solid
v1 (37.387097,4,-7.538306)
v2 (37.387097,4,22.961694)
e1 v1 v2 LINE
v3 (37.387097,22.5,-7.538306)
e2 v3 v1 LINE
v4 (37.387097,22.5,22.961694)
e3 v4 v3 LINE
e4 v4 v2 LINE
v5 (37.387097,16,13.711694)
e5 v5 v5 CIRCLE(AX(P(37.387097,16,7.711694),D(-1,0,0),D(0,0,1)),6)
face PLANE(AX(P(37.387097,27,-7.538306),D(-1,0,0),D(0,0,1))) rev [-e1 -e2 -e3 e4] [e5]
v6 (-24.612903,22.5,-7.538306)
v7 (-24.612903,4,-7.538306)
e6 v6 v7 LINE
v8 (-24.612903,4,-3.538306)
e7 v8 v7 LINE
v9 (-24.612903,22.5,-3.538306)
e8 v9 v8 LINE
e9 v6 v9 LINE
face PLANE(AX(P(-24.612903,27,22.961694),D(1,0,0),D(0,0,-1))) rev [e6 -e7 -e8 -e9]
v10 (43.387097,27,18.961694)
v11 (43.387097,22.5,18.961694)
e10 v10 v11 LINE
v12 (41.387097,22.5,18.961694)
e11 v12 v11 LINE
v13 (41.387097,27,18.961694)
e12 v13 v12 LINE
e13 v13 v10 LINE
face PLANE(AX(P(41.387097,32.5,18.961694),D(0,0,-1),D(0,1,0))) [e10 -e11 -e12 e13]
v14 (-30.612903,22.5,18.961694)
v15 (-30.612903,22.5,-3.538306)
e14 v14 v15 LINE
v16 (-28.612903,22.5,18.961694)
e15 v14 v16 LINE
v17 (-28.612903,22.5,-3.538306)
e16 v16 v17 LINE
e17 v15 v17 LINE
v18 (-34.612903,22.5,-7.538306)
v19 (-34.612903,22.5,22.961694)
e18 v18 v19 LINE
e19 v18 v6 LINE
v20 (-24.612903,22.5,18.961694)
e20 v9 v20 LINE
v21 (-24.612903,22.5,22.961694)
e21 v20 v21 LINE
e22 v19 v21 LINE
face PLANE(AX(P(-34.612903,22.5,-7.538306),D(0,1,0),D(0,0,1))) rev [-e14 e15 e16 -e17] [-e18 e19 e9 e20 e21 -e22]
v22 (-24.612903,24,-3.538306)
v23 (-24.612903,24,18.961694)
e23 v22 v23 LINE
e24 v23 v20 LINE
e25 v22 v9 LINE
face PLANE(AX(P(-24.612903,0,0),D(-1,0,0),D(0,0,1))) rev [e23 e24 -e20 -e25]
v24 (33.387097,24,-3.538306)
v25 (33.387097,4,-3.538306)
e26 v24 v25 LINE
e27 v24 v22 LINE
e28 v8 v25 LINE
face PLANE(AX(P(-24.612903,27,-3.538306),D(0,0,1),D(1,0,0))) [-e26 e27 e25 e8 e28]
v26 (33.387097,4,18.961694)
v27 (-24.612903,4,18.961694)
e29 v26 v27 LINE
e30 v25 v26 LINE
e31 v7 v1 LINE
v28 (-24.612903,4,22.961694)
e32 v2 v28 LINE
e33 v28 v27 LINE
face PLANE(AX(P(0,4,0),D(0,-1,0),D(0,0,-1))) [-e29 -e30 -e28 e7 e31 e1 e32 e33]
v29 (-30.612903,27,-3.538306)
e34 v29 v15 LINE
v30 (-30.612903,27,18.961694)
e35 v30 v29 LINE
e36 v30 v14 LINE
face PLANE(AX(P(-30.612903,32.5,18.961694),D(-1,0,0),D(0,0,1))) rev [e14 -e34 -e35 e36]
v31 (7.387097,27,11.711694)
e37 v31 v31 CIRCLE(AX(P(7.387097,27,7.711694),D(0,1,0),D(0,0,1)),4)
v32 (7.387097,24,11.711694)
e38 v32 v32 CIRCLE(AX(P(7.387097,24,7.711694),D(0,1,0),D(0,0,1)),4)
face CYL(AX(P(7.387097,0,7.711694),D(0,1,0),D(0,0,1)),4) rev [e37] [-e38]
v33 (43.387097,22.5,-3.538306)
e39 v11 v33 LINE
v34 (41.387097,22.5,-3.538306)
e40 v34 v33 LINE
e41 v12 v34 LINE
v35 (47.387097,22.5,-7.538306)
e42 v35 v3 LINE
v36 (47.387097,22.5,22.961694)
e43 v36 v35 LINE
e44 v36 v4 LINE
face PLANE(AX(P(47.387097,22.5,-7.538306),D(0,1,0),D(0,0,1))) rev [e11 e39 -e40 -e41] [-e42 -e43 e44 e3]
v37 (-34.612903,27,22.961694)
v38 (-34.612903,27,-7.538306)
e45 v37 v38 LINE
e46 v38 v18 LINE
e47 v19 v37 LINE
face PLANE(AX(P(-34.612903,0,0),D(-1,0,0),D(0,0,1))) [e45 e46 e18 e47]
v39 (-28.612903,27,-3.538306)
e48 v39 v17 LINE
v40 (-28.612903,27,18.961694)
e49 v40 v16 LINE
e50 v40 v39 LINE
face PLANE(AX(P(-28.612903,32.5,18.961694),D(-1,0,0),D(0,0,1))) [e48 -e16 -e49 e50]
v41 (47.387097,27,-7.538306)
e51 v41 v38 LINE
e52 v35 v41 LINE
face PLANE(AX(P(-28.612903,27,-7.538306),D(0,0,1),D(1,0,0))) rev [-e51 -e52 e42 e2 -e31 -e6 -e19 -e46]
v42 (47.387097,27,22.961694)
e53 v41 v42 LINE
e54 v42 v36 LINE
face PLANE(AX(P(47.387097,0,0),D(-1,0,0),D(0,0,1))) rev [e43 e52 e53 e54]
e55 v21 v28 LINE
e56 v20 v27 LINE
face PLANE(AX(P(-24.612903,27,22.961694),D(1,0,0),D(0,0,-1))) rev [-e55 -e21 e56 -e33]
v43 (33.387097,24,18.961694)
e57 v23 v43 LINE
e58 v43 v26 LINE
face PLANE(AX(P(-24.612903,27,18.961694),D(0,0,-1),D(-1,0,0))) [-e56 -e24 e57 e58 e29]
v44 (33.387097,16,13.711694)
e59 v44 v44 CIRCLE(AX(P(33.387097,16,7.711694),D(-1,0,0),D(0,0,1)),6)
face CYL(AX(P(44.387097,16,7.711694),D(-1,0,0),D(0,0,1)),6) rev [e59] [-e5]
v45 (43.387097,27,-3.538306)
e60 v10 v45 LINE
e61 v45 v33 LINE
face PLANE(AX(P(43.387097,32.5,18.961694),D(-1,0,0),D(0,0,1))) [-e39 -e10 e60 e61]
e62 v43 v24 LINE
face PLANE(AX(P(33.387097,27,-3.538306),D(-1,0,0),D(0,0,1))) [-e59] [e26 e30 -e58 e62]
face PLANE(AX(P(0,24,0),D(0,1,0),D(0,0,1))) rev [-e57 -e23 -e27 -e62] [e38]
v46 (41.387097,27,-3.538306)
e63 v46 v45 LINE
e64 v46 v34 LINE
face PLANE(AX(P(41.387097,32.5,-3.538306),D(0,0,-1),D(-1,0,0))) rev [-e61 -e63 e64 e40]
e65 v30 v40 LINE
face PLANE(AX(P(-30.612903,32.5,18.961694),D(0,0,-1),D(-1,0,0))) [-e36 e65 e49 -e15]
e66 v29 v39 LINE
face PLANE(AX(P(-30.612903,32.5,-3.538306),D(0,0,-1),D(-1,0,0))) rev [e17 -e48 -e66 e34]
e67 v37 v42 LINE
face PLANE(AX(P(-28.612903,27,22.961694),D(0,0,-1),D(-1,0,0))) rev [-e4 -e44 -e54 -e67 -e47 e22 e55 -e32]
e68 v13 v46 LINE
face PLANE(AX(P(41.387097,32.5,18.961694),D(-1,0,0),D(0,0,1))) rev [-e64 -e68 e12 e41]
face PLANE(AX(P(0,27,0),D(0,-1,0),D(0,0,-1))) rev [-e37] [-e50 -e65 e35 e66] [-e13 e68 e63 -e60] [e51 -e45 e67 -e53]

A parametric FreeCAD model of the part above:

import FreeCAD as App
import Part
import Sketcher


def add_polygon(sketch, points):
    """Adds a closed chain of lines whose ends are joined by coincident constraints."""
    first, n = sketch.GeometryCount, len(points)
    for a, b in zip(points, points[1:] + points[:1]):
        sketch.addGeometry(Part.LineSegment(App.Vector(*a, 0), App.Vector(*b, 0)), False)
    for i in range(n):
        sketch.addConstraint(Sketcher.Constraint("Coincident", first + i, 2, first + (i + 1) % n, 1))

doc = App.newDocument("Part")
body = doc.addObject("PartDesign::Body", "Body")

# Sketch on XZ plane
sketch1 = body.newObject("Sketcher::SketchObject", "Sketch")
sketch1.AttachmentSupport = (doc.getObject("XZ_Plane"), [""])
sketch1.MapMode = "FlatFace"
add_polygon(sketch1, [(-29, -8), (-29, 23), (37, 23), (37, -8)])  # lines 0-3
add_polygon(sketch1, [(33, 19), (-25, 19), (-25, -4), (33, -4)])  # lines 4-7
sketch1.addConstraint(Sketcher.Constraint("Vertical", 0))
sketch1.addConstraint(Sketcher.Constraint("Horizontal", 1))
sketch1.addConstraint(Sketcher.Constraint("Vertical", 2))
sketch1.addConstraint(Sketcher.Constraint("Horizontal", 3))
sketch1.addConstraint(Sketcher.Constraint("Horizontal", 4))
sketch1.addConstraint(Sketcher.Constraint("Vertical", 5))
sketch1.addConstraint(Sketcher.Constraint("Horizontal", 6))
sketch1.addConstraint(Sketcher.Constraint("Vertical", 7))
sketch1.addConstraint(Sketcher.Constraint("DistanceX", 1, 1, 1, 2, 66.0))
sketch1.addConstraint(Sketcher.Constraint("DistanceX", 4, 2, 4, 1, 58.0))
sketch1.addConstraint(Sketcher.Constraint("DistanceY", 0, 1, 0, 2, 30.5))
sketch1.addConstraint(Sketcher.Constraint("DistanceY", 5, 2, 5, 1, 22.5))
sketch1.addConstraint(Sketcher.Constraint("DistanceX", 0, 2, 4, 2, 4.0))
sketch1.addConstraint(Sketcher.Constraint("DistanceY", 4, 2, 0, 2, 4.0))
sketch1.addConstraint(Sketcher.Constraint("DistanceX", 0, 2, -1, 1, 28.612903))
sketch1.addConstraint(Sketcher.Constraint("DistanceY", -1, 1, 0, 2, 22.961694))
pad1 = body.newObject("PartDesign::Pad", "Pad")
pad1.Profile = sketch1
pad1.Length = 27
pad1.Reversed = True

# Sketch on XZ plane
sketch2 = body.newObject("Sketcher::SketchObject", "Sketch001")
sketch2.AttachmentSupport = (doc.getObject("XZ_Plane"), [""])
sketch2.MapMode = "FlatFace"
sketch2.AttachmentOffset = App.Placement(App.Vector(0, 0, -27), App.Rotation())
add_polygon(sketch2, [(-29, -8), (-29, 23), (37, 23), (37, -8)])  # lines 0-3
sketch2.addConstraint(Sketcher.Constraint("Vertical", 0))
sketch2.addConstraint(Sketcher.Constraint("Horizontal", 1))
sketch2.addConstraint(Sketcher.Constraint("Vertical", 2))
sketch2.addConstraint(Sketcher.Constraint("Horizontal", 3))
sketch2.addConstraint(Sketcher.Constraint("DistanceX", 1, 1, 1, 2, 66.0))
sketch2.addConstraint(Sketcher.Constraint("DistanceY", 0, 1, 0, 2, 30.5))
sketch2.addConstraint(Sketcher.Constraint("DistanceX", 0, 2, -1, 1, 28.612903))
sketch2.addConstraint(Sketcher.Constraint("DistanceY", -1, 1, 0, 2, 22.961694))
pad2 = body.newObject("PartDesign::Pad", "Pad001")
pad2.Profile = sketch2
pad2.Length = 3

# Sketch on XZ plane
sketch3 = body.newObject("Sketcher::SketchObject", "Sketch002")
sketch3.AttachmentSupport = (doc.getObject("XZ_Plane"), [""])
sketch3.MapMode = "FlatFace"
sketch3.AttachmentOffset = App.Placement(App.Vector(0, 0, -27), App.Rotation())
sketch3.addGeometry(Part.Circle(App.Vector(7.4, 7.7, 0), App.Vector(0, 0, 1), 4), False)
sketch3.addConstraint(Sketcher.Constraint("Diameter", 0, 8.0))
sketch3.addConstraint(Sketcher.Constraint("DistanceX", -1, 1, 0, 3, 7.387097))
sketch3.addConstraint(Sketcher.Constraint("DistanceY", -1, 1, 0, 3, 7.711694))
pocket1 = body.newObject("PartDesign::Pocket", "Pocket")
pocket1.Profile = sketch3
pocket1.Type = "ThroughAll"
pocket1.Reversed = True

# Sketch on YZ plane
sketch4 = body.newObject("Sketcher::SketchObject", "Sketch003")
sketch4.AttachmentSupport = (doc.getObject("YZ_Plane"), [""])
sketch4.MapMode = "FlatFace"
sketch4.AttachmentOffset = App.Placement(App.Vector(0, 0, 33.387097), App.Rotation())
sketch4.addGeometry(Part.Circle(App.Vector(16, 8, 0), App.Vector(0, 0, 1), 6), False)
sketch4.addConstraint(Sketcher.Constraint("Diameter", 0, 12.0))
sketch4.addConstraint(Sketcher.Constraint("DistanceX", -1, 1, 0, 3, 16.0))
sketch4.addConstraint(Sketcher.Constraint("DistanceY", -1, 1, 0, 3, 7.711694))
pocket2 = body.newObject("PartDesign::Pocket", "Pocket001")
pocket2.Profile = sketch4
pocket2.Length = 11
pocket2.Reversed = True

# Sketch on XZ plane
sketch5 = body.newObject("Sketcher::SketchObject", "Sketch004")
sketch5.AttachmentSupport = (doc.getObject("XZ_Plane"), [""])
sketch5.MapMode = "FlatFace"
add_polygon(sketch5, [(-28.6, 23), (-28.6, -7.5), (-24.6, -7.5), (-24.6, 23)])  # lines 0-3
sketch5.addConstraint(Sketcher.Constraint("Vertical", 0))
sketch5.addConstraint(Sketcher.Constraint("Horizontal", 1))
sketch5.addConstraint(Sketcher.Constraint("Vertical", 2))
sketch5.addConstraint(Sketcher.Constraint("Horizontal", 3))
sketch5.addConstraint(Sketcher.Constraint("DistanceX", 1, 1, 1, 2, 4.0))
sketch5.addConstraint(Sketcher.Constraint("DistanceY", 0, 2, 0, 1, 30.5))
sketch5.addConstraint(Sketcher.Constraint("DistanceX", 0, 2, -1, 1, 28.612903))
sketch5.addConstraint(Sketcher.Constraint("DistanceY", 0, 2, -1, 1, 7.538306))
pocket3 = body.newObject("PartDesign::Pocket", "Pocket002")
pocket3.Profile = sketch5
pocket3.Type = "ThroughAll"

# Sketch on YZ plane
sketch6 = body.newObject("Sketcher::SketchObject", "Sketch005")
sketch6.AttachmentSupport = (doc.getObject("YZ_Plane"), [""])
sketch6.MapMode = "FlatFace"
sketch6.AttachmentOffset = App.Placement(App.Vector(0, 0, 37.387097), App.Rotation())
add_polygon(sketch6, [(27, 23), (22.5, 23), (22.5, -7.5), (27, -7.5)])  # lines 0-3
sketch6.addConstraint(Sketcher.Constraint("Horizontal", 0))
sketch6.addConstraint(Sketcher.Constraint("Vertical", 1))
sketch6.addConstraint(Sketcher.Constraint("Horizontal", 2))
sketch6.addConstraint(Sketcher.Constraint("Vertical", 3))
sketch6.addConstraint(Sketcher.Constraint("DistanceX", 0, 2, 0, 1, 4.5))
sketch6.addConstraint(Sketcher.Constraint("DistanceY", 1, 2, 1, 1, 30.5))
sketch6.addConstraint(Sketcher.Constraint("DistanceX", -1, 1, 2, 2, 27.0))
sketch6.addConstraint(Sketcher.Constraint("DistanceY", -1, 1, 0, 2, 22.961694))
pad3 = body.newObject("PartDesign::Pad", "Pad002")
pad3.Profile = sketch6
pad3.Length = 10

# Sketch on XZ plane
sketch7 = body.newObject("Sketcher::SketchObject", "Sketch006")
sketch7.AttachmentSupport = (doc.getObject("XZ_Plane"), [""])
sketch7.MapMode = "FlatFace"
sketch7.AttachmentOffset = App.Placement(App.Vector(0, 0, -22.5), App.Rotation())
add_polygon(sketch7, [(41.4, 19), (41.4, -3.5), (43.4, -3.5), (43.4, 19)])  # lines 0-3
sketch7.addConstraint(Sketcher.Constraint("Vertical", 0))
sketch7.addConstraint(Sketcher.Constraint("Horizontal", 1))
sketch7.addConstraint(Sketcher.Constraint("Vertical", 2))
sketch7.addConstraint(Sketcher.Constraint("Horizontal", 3))
sketch7.addConstraint(Sketcher.Constraint("DistanceX", 1, 1, 1, 2, 2.0))
sketch7.addConstraint(Sketcher.Constraint("DistanceY", 0, 2, 0, 1, 22.5))
sketch7.addConstraint(Sketcher.Constraint("DistanceX", -1, 1, 0, 2, 41.387097))
sketch7.addConstraint(Sketcher.Constraint("DistanceY", 0, 2, -1, 1, 3.538306))
pocket4 = body.newObject("PartDesign::Pocket", "Pocket003")
pocket4.Profile = sketch7
pocket4.Length = 10

# Sketch on YZ plane
sketch8 = body.newObject("Sketcher::SketchObject", "Sketch007")
sketch8.AttachmentSupport = (doc.getObject("YZ_Plane"), [""])
sketch8.MapMode = "FlatFace"
sketch8.AttachmentOffset = App.Placement(App.Vector(0, 0, -24.612903), App.Rotation())
add_polygon(sketch8, [(27, -7.5), (22.5, -7.5), (22.5, 23), (27, 23)])  # lines 0-3
sketch8.addConstraint(Sketcher.Constraint("Horizontal", 0))
sketch8.addConstraint(Sketcher.Constraint("Vertical", 1))
sketch8.addConstraint(Sketcher.Constraint("Horizontal", 2))
sketch8.addConstraint(Sketcher.Constraint("Vertical", 3))
sketch8.addConstraint(Sketcher.Constraint("DistanceX", 0, 2, 0, 1, 4.5))
sketch8.addConstraint(Sketcher.Constraint("DistanceY", 1, 1, 1, 2, 30.5))
sketch8.addConstraint(Sketcher.Constraint("DistanceX", -1, 1, 2, 2, 27.0))
sketch8.addConstraint(Sketcher.Constraint("DistanceY", 0, 2, -1, 1, 7.538306))
pad4 = body.newObject("PartDesign::Pad", "Pad003")
pad4.Profile = sketch8
pad4.Length = 10
pad4.Reversed = True

# Sketch on XZ plane
sketch9 = body.newObject("Sketcher::SketchObject", "Sketch008")
sketch9.AttachmentSupport = (doc.getObject("XZ_Plane"), [""])
sketch9.MapMode = "FlatFace"
sketch9.AttachmentOffset = App.Placement(App.Vector(0, 0, -22.5), App.Rotation())
add_polygon(sketch9, [(-30.6, 19), (-30.6, -3.5), (-28.6, -3.5), (-28.6, 19)])  # lines 0-3
sketch9.addConstraint(Sketcher.Constraint("Vertical", 0))
sketch9.addConstraint(Sketcher.Constraint("Horizontal", 1))
sketch9.addConstraint(Sketcher.Constraint("Vertical", 2))
sketch9.addConstraint(Sketcher.Constraint("Horizontal", 3))
sketch9.addConstraint(Sketcher.Constraint("DistanceX", 1, 1, 1, 2, 2.0))
sketch9.addConstraint(Sketcher.Constraint("DistanceY", 0, 2, 0, 1, 22.5))
sketch9.addConstraint(Sketcher.Constraint("DistanceX", 0, 2, -1, 1, 30.612903))
sketch9.addConstraint(Sketcher.Constraint("DistanceY", 0, 2, -1, 1, 3.538306))
pocket5 = body.newObject("PartDesign::Pocket", "Pocket004")
pocket5.Profile = sketch9
pocket5.Length = 10

# Sketch on XZ plane
sketch10 = body.newObject("Sketcher::SketchObject", "Sketch009")
sketch10.AttachmentSupport = (doc.getObject("XZ_Plane"), [""])
sketch10.MapMode = "FlatFace"
add_polygon(sketch10, [(-25, 23), (-25, -8), (37, -8), (37, 23)])  # lines 0-3
sketch10.addConstraint(Sketcher.Constraint("Vertical", 0))
sketch10.addConstraint(Sketcher.Constraint("Horizontal", 1))
sketch10.addConstraint(Sketcher.Constraint("Vertical", 2))
sketch10.addConstraint(Sketcher.Constraint("Horizontal", 3))
sketch10.addConstraint(Sketcher.Constraint("DistanceX", 1, 1, 1, 2, 62.0))
sketch10.addConstraint(Sketcher.Constraint("DistanceY", 0, 2, 0, 1, 30.5))
sketch10.addConstraint(Sketcher.Constraint("DistanceX", 0, 2, -1, 1, 24.612903))
sketch10.addConstraint(Sketcher.Constraint("DistanceY", 0, 2, -1, 1, 7.538306))
pocket6 = body.newObject("PartDesign::Pocket", "Pocket005")
pocket6.Profile = sketch10
pocket6.Length = 4

doc.recompute()
